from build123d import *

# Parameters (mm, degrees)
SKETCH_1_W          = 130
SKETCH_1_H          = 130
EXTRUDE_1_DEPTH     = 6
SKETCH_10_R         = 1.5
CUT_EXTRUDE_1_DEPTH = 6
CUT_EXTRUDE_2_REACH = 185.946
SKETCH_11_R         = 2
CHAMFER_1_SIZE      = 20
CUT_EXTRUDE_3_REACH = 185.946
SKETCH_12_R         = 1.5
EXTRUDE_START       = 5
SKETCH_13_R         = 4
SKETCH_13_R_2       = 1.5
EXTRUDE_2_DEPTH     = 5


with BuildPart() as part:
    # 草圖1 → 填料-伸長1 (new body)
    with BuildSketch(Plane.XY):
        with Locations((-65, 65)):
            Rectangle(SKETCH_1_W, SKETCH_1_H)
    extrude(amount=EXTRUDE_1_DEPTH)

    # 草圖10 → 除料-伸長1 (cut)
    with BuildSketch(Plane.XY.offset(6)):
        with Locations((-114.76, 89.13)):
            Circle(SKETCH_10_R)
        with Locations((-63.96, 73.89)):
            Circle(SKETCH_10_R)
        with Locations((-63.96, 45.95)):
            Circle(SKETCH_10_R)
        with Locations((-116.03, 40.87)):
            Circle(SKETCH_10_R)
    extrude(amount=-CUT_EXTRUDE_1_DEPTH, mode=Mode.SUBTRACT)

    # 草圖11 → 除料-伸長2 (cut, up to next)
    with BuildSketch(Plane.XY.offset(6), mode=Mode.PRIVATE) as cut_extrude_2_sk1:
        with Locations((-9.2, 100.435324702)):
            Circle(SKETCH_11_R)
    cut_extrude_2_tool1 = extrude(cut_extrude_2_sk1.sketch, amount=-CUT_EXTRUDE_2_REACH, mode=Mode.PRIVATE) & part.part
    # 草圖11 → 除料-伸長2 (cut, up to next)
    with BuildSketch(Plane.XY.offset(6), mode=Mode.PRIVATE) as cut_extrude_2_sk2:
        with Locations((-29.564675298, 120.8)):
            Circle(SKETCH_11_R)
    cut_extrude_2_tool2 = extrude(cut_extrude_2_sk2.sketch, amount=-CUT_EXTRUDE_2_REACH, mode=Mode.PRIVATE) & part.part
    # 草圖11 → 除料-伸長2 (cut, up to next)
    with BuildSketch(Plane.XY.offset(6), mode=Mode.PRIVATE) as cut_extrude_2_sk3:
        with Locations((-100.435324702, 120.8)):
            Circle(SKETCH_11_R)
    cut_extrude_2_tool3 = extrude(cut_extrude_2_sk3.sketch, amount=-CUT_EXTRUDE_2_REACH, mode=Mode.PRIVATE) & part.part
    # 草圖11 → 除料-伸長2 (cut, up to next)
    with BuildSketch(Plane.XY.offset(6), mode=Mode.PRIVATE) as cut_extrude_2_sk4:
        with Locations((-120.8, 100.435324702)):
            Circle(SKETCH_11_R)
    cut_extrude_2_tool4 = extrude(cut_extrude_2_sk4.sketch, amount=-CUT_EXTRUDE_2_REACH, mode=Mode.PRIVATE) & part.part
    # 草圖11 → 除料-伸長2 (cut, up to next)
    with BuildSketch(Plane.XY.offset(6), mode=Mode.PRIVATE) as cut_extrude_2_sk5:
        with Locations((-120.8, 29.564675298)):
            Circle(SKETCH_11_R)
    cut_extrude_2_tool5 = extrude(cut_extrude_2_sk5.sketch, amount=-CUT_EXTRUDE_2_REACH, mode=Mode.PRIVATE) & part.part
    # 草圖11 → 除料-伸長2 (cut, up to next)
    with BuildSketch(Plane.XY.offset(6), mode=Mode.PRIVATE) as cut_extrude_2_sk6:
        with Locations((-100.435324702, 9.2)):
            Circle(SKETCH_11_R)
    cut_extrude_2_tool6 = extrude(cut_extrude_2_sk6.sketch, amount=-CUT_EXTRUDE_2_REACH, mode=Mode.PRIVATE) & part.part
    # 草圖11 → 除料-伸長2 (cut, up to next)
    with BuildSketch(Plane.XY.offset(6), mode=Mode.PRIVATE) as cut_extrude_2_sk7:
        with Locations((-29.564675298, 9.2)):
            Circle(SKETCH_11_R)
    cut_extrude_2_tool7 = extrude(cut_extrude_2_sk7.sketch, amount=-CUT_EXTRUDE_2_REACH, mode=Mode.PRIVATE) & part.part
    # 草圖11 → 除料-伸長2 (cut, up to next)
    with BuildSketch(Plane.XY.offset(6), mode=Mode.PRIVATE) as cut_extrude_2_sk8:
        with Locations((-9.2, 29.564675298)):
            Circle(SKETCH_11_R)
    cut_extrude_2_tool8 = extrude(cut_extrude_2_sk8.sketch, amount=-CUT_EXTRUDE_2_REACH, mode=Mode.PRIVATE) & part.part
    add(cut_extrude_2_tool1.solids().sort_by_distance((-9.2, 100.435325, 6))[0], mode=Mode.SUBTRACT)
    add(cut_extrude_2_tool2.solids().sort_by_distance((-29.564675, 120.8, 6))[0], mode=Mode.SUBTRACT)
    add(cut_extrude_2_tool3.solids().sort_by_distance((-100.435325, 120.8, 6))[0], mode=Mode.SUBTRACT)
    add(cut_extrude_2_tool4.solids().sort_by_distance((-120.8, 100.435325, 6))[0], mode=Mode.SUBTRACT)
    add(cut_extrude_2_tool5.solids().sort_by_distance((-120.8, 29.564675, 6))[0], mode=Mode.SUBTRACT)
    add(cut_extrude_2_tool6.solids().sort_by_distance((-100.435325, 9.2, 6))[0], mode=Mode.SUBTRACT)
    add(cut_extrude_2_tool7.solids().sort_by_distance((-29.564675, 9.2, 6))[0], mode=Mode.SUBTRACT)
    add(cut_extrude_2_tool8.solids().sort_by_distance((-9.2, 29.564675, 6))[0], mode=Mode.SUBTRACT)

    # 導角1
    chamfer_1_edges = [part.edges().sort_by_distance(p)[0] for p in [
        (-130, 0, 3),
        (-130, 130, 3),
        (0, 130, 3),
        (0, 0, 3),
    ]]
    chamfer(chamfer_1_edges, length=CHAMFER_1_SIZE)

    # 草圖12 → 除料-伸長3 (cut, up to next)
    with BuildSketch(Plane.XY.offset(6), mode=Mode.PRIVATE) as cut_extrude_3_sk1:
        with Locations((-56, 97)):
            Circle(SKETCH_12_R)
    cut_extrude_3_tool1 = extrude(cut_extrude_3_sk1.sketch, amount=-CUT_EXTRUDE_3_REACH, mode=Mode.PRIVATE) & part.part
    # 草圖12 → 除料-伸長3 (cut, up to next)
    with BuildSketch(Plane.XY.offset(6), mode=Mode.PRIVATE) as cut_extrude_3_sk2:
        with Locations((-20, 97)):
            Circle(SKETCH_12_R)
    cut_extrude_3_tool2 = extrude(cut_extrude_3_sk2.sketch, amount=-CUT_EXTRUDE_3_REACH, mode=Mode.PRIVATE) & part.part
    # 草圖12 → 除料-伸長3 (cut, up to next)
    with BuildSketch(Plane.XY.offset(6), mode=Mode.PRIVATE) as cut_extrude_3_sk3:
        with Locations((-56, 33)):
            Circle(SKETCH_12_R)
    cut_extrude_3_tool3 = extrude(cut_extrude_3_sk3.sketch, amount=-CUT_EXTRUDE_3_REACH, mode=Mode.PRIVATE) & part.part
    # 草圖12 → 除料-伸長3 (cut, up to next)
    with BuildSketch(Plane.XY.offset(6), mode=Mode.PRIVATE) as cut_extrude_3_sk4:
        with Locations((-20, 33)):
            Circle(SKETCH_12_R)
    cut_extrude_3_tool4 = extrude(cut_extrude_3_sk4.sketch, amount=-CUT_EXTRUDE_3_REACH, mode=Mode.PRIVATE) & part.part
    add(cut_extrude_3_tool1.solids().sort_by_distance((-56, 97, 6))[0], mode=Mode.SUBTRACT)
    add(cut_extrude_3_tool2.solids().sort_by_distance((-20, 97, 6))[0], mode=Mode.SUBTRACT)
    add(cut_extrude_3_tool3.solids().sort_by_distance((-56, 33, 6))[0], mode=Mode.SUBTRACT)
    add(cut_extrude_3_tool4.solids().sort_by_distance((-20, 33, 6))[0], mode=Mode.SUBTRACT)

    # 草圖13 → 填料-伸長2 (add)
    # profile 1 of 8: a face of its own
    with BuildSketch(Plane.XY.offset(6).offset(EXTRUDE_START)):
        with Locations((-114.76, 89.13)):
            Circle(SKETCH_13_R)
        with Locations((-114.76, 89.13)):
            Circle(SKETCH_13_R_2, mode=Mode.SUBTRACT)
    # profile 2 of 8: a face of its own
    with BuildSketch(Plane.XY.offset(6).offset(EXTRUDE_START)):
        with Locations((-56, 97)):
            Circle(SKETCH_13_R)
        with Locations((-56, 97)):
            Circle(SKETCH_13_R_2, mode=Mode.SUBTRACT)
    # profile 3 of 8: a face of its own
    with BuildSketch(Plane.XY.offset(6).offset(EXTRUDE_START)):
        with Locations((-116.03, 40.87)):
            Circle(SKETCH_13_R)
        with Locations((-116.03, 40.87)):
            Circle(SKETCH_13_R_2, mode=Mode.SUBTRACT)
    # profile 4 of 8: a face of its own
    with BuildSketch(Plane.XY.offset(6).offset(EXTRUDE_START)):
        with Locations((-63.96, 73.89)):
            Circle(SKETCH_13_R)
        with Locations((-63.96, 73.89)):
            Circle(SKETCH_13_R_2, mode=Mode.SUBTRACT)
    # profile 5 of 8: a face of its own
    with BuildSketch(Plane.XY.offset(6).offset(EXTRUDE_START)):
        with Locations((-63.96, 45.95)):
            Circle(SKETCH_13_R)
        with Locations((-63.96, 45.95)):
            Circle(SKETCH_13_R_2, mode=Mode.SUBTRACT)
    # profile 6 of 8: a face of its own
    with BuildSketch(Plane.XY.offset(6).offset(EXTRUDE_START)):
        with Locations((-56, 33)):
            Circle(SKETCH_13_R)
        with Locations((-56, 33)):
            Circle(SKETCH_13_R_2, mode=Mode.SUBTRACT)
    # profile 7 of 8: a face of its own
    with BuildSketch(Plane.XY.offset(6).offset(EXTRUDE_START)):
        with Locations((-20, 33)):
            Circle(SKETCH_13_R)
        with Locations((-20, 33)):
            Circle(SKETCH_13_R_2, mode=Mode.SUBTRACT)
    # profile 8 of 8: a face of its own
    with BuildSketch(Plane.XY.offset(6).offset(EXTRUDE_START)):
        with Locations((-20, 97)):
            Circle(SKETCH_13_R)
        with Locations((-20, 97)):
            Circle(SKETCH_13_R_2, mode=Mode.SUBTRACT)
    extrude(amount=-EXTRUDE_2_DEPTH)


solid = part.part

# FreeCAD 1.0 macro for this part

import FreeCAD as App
import Part
import Sketcher
Q = App.Units.Quantity


def edges_at(feature, points):
    """Names of the edges that pass closest to the given points."""
    edges = feature.Shape.Edges
    near = lambda p: min(range(len(edges)), key=lambda i: edges[i].distToShape(Part.Vertex(*p))[0])
    return sorted({f"Edge{near(p) + 1}" for p in points})

doc = App.newDocument("Part")
body = doc.addObject("PartDesign::Body", "Body")

# Sketch on XY plane
sketch1 = body.newObject("Sketcher::SketchObject", "Sketch")
sketch1.AttachmentSupport = (doc.getObject("XY_Plane"), [""])
sketch1.MapMode = "FlatFace"
sketch1.addGeometry(Part.LineSegment(App.Vector(-130, 130, 0), App.Vector(-130, 0, 0)), False)
sketch1.addGeometry(Part.LineSegment(App.Vector(-130, 0, 0), App.Vector(0, 0, 0)), False)
sketch1.addGeometry(Part.LineSegment(App.Vector(0, 0, 0), App.Vector(0, 130, 0)), False)
sketch1.addGeometry(Part.LineSegment(App.Vector(0, 130, 0), App.Vector(-130, 130, 0)), False)
sketch1.addConstraint(Sketcher.Constraint("Coincident", 0, 2, 1, 1))
sketch1.addConstraint(Sketcher.Constraint("Coincident", 1, 2, 2, 1))
sketch1.addConstraint(Sketcher.Constraint("Coincident", 2, 2, 3, 1))
sketch1.addConstraint(Sketcher.Constraint("Coincident", 3, 2, 0, 1))
sketch1.addConstraint(Sketcher.Constraint("Vertical", 0))
sketch1.addConstraint(Sketcher.Constraint("Horizontal", 1))
sketch1.addConstraint(Sketcher.Constraint("Vertical", 2))
sketch1.addConstraint(Sketcher.Constraint("Horizontal", 3))
sketch1.addConstraint(Sketcher.Constraint("Coincident", 1, 2, -1, 1))
sketch1.addConstraint(Sketcher.Constraint("Equal", 3, 0))
sketch1.addConstraint(Sketcher.Constraint("DistanceX", 1, 1, 1, 2, Q("130 mm")))
pad1 = body.newObject("PartDesign::Pad", "Pad")
pad1.Profile = sketch1
pad1.Length = 6

# Sketch on XY plane
sketch2 = body.newObject("Sketcher::SketchObject", "Sketch001")
sketch2.AttachmentSupport = (doc.getObject("XY_Plane"), [""])
sketch2.MapMode = "FlatFace"
sketch2.AttachmentOffset = App.Placement(App.Vector(0, 0, 6), App.Rotation())
sketch2.addGeometry(Part.Circle(App.Vector(-114.8, 89.1, 0), App.Vector(0, 0, 1), 1.5), False)
sketch2.addGeometry(Part.Circle(App.Vector(-64, 73.9, 0), App.Vector(0, 0, 1), 1.5), False)
sketch2.addGeometry(Part.Circle(App.Vector(-64, 46, 0), App.Vector(0, 0, 1), 1.5), False)
sketch2.addGeometry(Part.Circle(App.Vector(-116, 40.9, 0), App.Vector(0, 0, 1), 1.5), False)
sketch2.addConstraint(Sketcher.Constraint("Equal", 0, 1))
sketch2.addConstraint(Sketcher.Constraint("Equal", 1, 2))
sketch2.addConstraint(Sketcher.Constraint("Equal", 2, 3))
sketch2.addConstraint(Sketcher.Constraint("Vertical", 1, 3, 2, 3))
sketch2.addConstraint(Sketcher.Constraint("Diameter", 0, Q("3 mm")))
sketch2.addConstraint(Sketcher.Constraint("DistanceX", 0, 3, 1, 3, Q("50.8 mm")))
sketch2.addConstraint(Sketcher.Constraint("DistanceX", 0, 3, -1, 1, Q("114.76 mm")))
sketch2.addConstraint(Sketcher.Constraint("DistanceY", -1, 1, 0, 3, Q("89.13 mm")))
sketch2.addConstraint(Sketcher.Constraint("DistanceY", -1, 1, 1, 3, Q("73.89 mm")))
sketch2.addConstraint(Sketcher.Constraint("DistanceY", -1, 1, 2, 3, Q("45.95 mm")))
sketch2.addConstraint(Sketcher.Constraint("DistanceX", 3, 3, -1, 1, Q("116.03 mm")))
sketch2.addConstraint(Sketcher.Constraint("DistanceY", -1, 1, 3, 3, Q("40.87 mm")))
pocket1 = body.newObject("PartDesign::Pocket", "Pocket")
pocket1.Profile = sketch2
pocket1.Length = 6

# Sketch on XY plane
sketch3 = body.newObject("Sketcher::SketchObject", "Sketch002")
sketch3.AttachmentSupport = (doc.getObject("XY_Plane"), [""])
sketch3.MapMode = "FlatFace"
sketch3.AttachmentOffset = App.Placement(App.Vector(0, 0, 6), App.Rotation())
sketch3.addGeometry(Part.Circle(App.Vector(-9.2, 100.4, 0), App.Vector(0, 0, 1), 2), False)
sketch3.addConstraint(Sketcher.Constraint("Diameter", 0, Q("4 mm")))
sketch3.addConstraint(Sketcher.Constraint("DistanceX", 0, 3, -1, 1, Q("9.2 mm")))
sketch3.addConstraint(Sketcher.Constraint("DistanceY", -1, 1, 0, 3, Q("100.435325 mm")))
pocket2 = body.newObject("PartDesign::Pocket", "Pocket001")
pocket2.Profile = sketch3
pocket2.Type = "UpToFirst"

# Sketch on XY plane
sketch4 = body.newObject("Sketcher::SketchObject", "Sketch003")
sketch4.AttachmentSupport = (doc.getObject("XY_Plane"), [""])
sketch4.MapMode = "FlatFace"
sketch4.AttachmentOffset = App.Placement(App.Vector(0, 0, 6), App.Rotation())
sketch4.addGeometry(Part.Circle(App.Vector(-29.6, 120.8, 0), App.Vector(0, 0, 1), 2), False)
sketch4.addConstraint(Sketcher.Constraint("Diameter", 0, Q("4 mm")))
sketch4.addConstraint(Sketcher.Constraint("DistanceY", -1, 1, 0, 3, Q("120.8 mm")))
sketch4.addConstraint(Sketcher.Constraint("DistanceX", 0, 3, -1, 1, Q("29.564675 mm")))
pocket3 = body.newObject("PartDesign::Pocket", "Pocket002")
pocket3.Profile = sketch4
pocket3.Type = "UpToFirst"

# Sketch on XY plane
sketch5 = body.newObject("Sketcher::SketchObject", "Sketch004")
sketch5.AttachmentSupport = (doc.getObject("XY_Plane"), [""])
sketch5.MapMode = "FlatFace"
sketch5.AttachmentOffset = App.Placement(App.Vector(0, 0, 6), App.Rotation())
sketch5.addGeometry(Part.Circle(App.Vector(-100.4, 120.8, 0), App.Vector(0, 0, 1), 2), False)
sketch5.addConstraint(Sketcher.Constraint("Diameter", 0, Q("4 mm")))
sketch5.addConstraint(Sketcher.Constraint("DistanceY", -1, 1, 0, 3, Q("120.8 mm")))
sketch5.addConstraint(Sketcher.Constraint("DistanceX", 0, 3, -1, 1, Q("100.435325 mm")))
pocket4 = body.newObject("PartDesign::Pocket", "Pocket003")
pocket4.Profile = sketch5
pocket4.Type = "UpToFirst"

# Sketch on XY plane
sketch6 = body.newObject("Sketcher::SketchObject", "Sketch005")
sketch6.AttachmentSupport = (doc.getObject("XY_Plane"), [""])
sketch6.MapMode = "FlatFace"
sketch6.AttachmentOffset = App.Placement(App.Vector(0, 0, 6), App.Rotation())
sketch6.addGeometry(Part.Circle(App.Vector(-120.8, 100.4, 0), App.Vector(0, 0, 1), 2), False)
sketch6.addConstraint(Sketcher.Constraint("Diameter", 0, Q("4 mm")))
sketch6.addConstraint(Sketcher.Constraint("DistanceX", 0, 3, -1, 1, Q("120.8 mm")))
sketch6.addConstraint(Sketcher.Constraint("DistanceY", -1, 1, 0, 3, Q("100.435325 mm")))
pocket5 = body.newObject("PartDesign::Pocket", "Pocket004")
pocket5.Profile = sketch6
pocket5.Type = "UpToFirst"

# Sketch on XY plane
sketch7 = body.newObject("Sketcher::SketchObject", "Sketch006")
sketch7.AttachmentSupport = (doc.getObject("XY_Plane"), [""])
sketch7.MapMode = "FlatFace"
sketch7.AttachmentOffset = App.Placement(App.Vector(0, 0, 6), App.Rotation())
sketch7.addGeometry(Part.Circle(App.Vector(-120.8, 29.6, 0), App.Vector(0, 0, 1), 2), False)
sketch7.addConstraint(Sketcher.Constraint("Diameter", 0, Q("4 mm")))
sketch7.addConstraint(Sketcher.Constraint("DistanceX", 0, 3, -1, 1, Q("120.8 mm")))
sketch7.addConstraint(Sketcher.Constraint("DistanceY", -1, 1, 0, 3, Q("29.564675 mm")))
pocket6 = body.newObject("PartDesign::Pocket", "Pocket005")
pocket6.Profile = sketch7
pocket6.Type = "UpToFirst"

# Sketch on XY plane
sketch8 = body.newObject("Sketcher::SketchObject", "Sketch007")
sketch8.AttachmentSupport = (doc.getObject("XY_Plane"), [""])
sketch8.MapMode = "FlatFace"
sketch8.AttachmentOffset = App.Placement(App.Vector(0, 0, 6), App.Rotation())
sketch8.addGeometry(Part.Circle(App.Vector(-100.4, 9.2, 0), App.Vector(0, 0, 1), 2), False)
sketch8.addConstraint(Sketcher.Constraint("Diameter", 0, Q("4 mm")))
sketch8.addConstraint(Sketcher.Constraint("DistanceY", -1, 1, 0, 3, Q("9.2 mm")))
sketch8.addConstraint(Sketcher.Constraint("DistanceX", 0, 3, -1, 1, Q("100.435325 mm")))
pocket7 = body.newObject("PartDesign::Pocket", "Pocket006")
pocket7.Profile = sketch8
pocket7.Type = "UpToFirst"

# Sketch on XY plane
sketch9 = body.newObject("Sketcher::SketchObject", "Sketch008")
sketch9.AttachmentSupport = (doc.getObject("XY_Plane"), [""])
sketch9.MapMode = "FlatFace"
sketch9.AttachmentOffset = App.Placement(App.Vector(0, 0, 6), App.Rotation())
sketch9.addGeometry(Part.Circle(App.Vector(-29.6, 9.2, 0), App.Vector(0, 0, 1), 2), False)
sketch9.addConstraint(Sketcher.Constraint("Diameter", 0, Q("4 mm")))
sketch9.addConstraint(Sketcher.Constraint("DistanceY", -1, 1, 0, 3, Q("9.2 mm")))
sketch9.addConstraint(Sketcher.Constraint("DistanceX", 0, 3, -1, 1, Q("29.564675 mm")))
pocket8 = body.newObject("PartDesign::Pocket", "Pocket007")
pocket8.Profile = sketch9
pocket8.Type = "UpToFirst"

# Sketch on XY plane
sketch10 = body.newObject("Sketcher::SketchObject", "Sketch009")
sketch10.AttachmentSupport = (doc.getObject("XY_Plane"), [""])
sketch10.MapMode = "FlatFace"
sketch10.AttachmentOffset = App.Placement(App.Vector(0, 0, 6), App.Rotation())
sketch10.addGeometry(Part.Circle(App.Vector(-9.2, 29.6, 0), App.Vector(0, 0, 1), 2), False)
sketch10.addConstraint(Sketcher.Constraint("Diameter", 0, Q("4 mm")))
sketch10.addConstraint(Sketcher.Constraint("DistanceX", 0, 3, -1, 1, Q("9.2 mm")))
sketch10.addConstraint(Sketcher.Constraint("DistanceY", -1, 1, 0, 3, Q("29.564675 mm")))
pocket9 = body.newObject("PartDesign::Pocket", "Pocket008")
pocket9.Profile = sketch10
pocket9.Type = "UpToFirst"
doc.recompute()

chamfer = body.newObject("PartDesign::Chamfer", "Chamfer")
chamfer.Base = (pocket9, edges_at(pocket9, [
    (-130, 0, 3),
    (-130, 130, 3),
    (0, 130, 3),
    (0, 0, 3),
]))
chamfer.Size = 20

# Sketch on XY plane
sketch11 = body.newObject("Sketcher::SketchObject", "Sketch010")
sketch11.AttachmentSupport = (doc.getObject("XY_Plane"), [""])
sketch11.MapMode = "FlatFace"
sketch11.AttachmentOffset = App.Placement(App.Vector(0, 0, 6), App.Rotation())
sketch11.addGeometry(Part.Circle(App.Vector(-56, 97, 0), App.Vector(0, 0, 1), 1.5), False)
sketch11.addConstraint(Sketcher.Constraint("Diameter", 0, Q("3 mm")))
sketch11.addConstraint(Sketcher.Constraint("DistanceX", 0, 3, -1, 1, Q("56 mm")))
sketch11.addConstraint(Sketcher.Constraint("DistanceY", -1, 1, 0, 3, Q("97 mm")))
pocket10 = body.newObject("PartDesign::Pocket", "Pocket009")
pocket10.Profile = sketch11
pocket10.Type = "UpToFirst"

# Sketch on XY plane
sketch12 = body.newObject("Sketcher::SketchObject", "Sketch011")
sketch12.AttachmentSupport = (doc.getObject("XY_Plane"), [""])
sketch12.MapMode = "FlatFace"
sketch12.AttachmentOffset = App.Placement(App.Vector(0, 0, 6), App.Rotation())
sketch12.addGeometry(Part.Circle(App.Vector(-20, 97, 0), App.Vector(0, 0, 1), 1.5), False)
sketch12.addConstraint(Sketcher.Constraint("Diameter", 0, Q("3 mm")))
sketch12.addConstraint(Sketcher.Constraint("DistanceX", 0, 3, -1, 1, Q("20 mm")))
sketch12.addConstraint(Sketcher.Constraint("DistanceY", -1, 1, 0, 3, Q("97 mm")))
pocket11 = body.newObject("PartDesign::Pocket", "Pocket010")
pocket11.Profile = sketch12
pocket11.Type = "UpToFirst"

# Sketch on XY plane
sketch13 = body.newObject("Sketcher::SketchObject", "Sketch012")
sketch13.AttachmentSupport = (doc.getObject("XY_Plane"), [""])
sketch13.MapMode = "FlatFace"
sketch13.AttachmentOffset = App.Placement(App.Vector(0, 0, 6), App.Rotation())
sketch13.addGeometry(Part.Circle(App.Vector(-56, 33, 0), App.Vector(0, 0, 1), 1.5), False)
sketch13.addConstraint(Sketcher.Constraint("Diameter", 0, Q("3 mm")))
sketch13.addConstraint(Sketcher.Constraint("DistanceX", 0, 3, -1, 1, Q("56 mm")))
sketch13.addConstraint(Sketcher.Constraint("DistanceY", -1, 1, 0, 3, Q("33 mm")))
pocket12 = body.newObject("PartDesign::Pocket", "Pocket011")
pocket12.Profile = sketch13
pocket12.Type = "UpToFirst"

# Sketch on XY plane
sketch14 = body.newObject("Sketcher::SketchObject", "Sketch013")
sketch14.AttachmentSupport = (doc.getObject("XY_Plane"), [""])
sketch14.MapMode = "FlatFace"
sketch14.AttachmentOffset = App.Placement(App.Vector(0, 0, 6), App.Rotation())
sketch14.addGeometry(Part.Circle(App.Vector(-20, 33, 0), App.Vector(0, 0, 1), 1.5), False)
sketch14.addConstraint(Sketcher.Constraint("Diameter", 0, Q("3 mm")))
sketch14.addConstraint(Sketcher.Constraint("DistanceX", 0, 3, -1, 1, Q("20 mm")))
sketch14.addConstraint(Sketcher.Constraint("DistanceY", -1, 1, 0, 3, Q("33 mm")))
pocket13 = body.newObject("PartDesign::Pocket", "Pocket012")
pocket13.Profile = sketch14
pocket13.Type = "UpToFirst"

# Sketch on XY plane
sketch15 = body.newObject("Sketcher::SketchObject", "Sketch014")
sketch15.AttachmentSupport = (doc.getObject("XY_Plane"), [""])
sketch15.MapMode = "FlatFace"
sketch15.AttachmentOffset = App.Placement(App.Vector(0, 0, 11), App.Rotation())
sketch15.addGeometry(Part.Circle(App.Vector(-114.8, 89.1, 0), App.Vector(0, 0, 1), 4), False)
sketch15.addGeometry(Part.Circle(App.Vector(-114.8, 89.1, 0), App.Vector(0, 0, 1), 1.5), False)
sketch15.addGeometry(Part.Circle(App.Vector(-56, 97, 0), App.Vector(0, 0, 1), 4), False)
sketch15.addGeometry(Part.Circle(App.Vector(-56, 97, 0), App.Vector(0, 0, 1), 1.5), False)
sketch15.addGeometry(Part.Circle(App.Vector(-116, 40.9, 0), App.Vector(0, 0, 1), 4), False)
sketch15.addGeometry(Part.Circle(App.Vector(-116, 40.9, 0), App.Vector(0, 0, 1), 1.5), False)
sketch15.addGeometry(Part.Circle(App.Vector(-64, 73.9, 0), App.Vector(0, 0, 1), 4), False)
sketch15.addGeometry(Part.Circle(App.Vector(-64, 73.9, 0), App.Vector(0, 0, 1), 1.5), False)
sketch15.addGeometry(Part.Circle(App.Vector(-64, 46, 0), App.Vector(0, 0, 1), 4), False)
sketch15.addGeometry(Part.Circle(App.Vector(-64, 46, 0), App.Vector(0, 0, 1), 1.5), False)
sketch15.addGeometry(Part.Circle(App.Vector(-56, 33, 0), App.Vector(0, 0, 1), 4), False)
sketch15.addGeometry(Part.Circle(App.Vector(-56, 33, 0), App.Vector(0, 0, 1), 1.5), False)
sketch15.addGeometry(Part.Circle(App.Vector(-20, 33, 0), App.Vector(0, 0, 1), 4), False)
sketch15.addGeometry(Part.Circle(App.Vector(-20, 33, 0), App.Vector(0, 0, 1), 1.5), False)
sketch15.addGeometry(Part.Circle(App.Vector(-20, 97, 0), App.Vector(0, 0, 1), 4), False)
sketch15.addGeometry(Part.Circle(App.Vector(-20, 97, 0), App.Vector(0, 0, 1), 1.5), False)
sketch15.addConstraint(Sketcher.Constraint("Coincident", 1, 3, 0, 3))
sketch15.addConstraint(Sketcher.Constraint("Coincident", 3, 3, 2, 3))
sketch15.addConstraint(Sketcher.Constraint("Coincident", 5, 3, 4, 3))
sketch15.addConstraint(Sketcher.Constraint("Coincident", 7, 3, 6, 3))
sketch15.addConstraint(Sketcher.Constraint("Coincident", 9, 3, 8, 3))
sketch15.addConstraint(Sketcher.Constraint("Coincident", 11, 3, 10, 3))
sketch15.addConstraint(Sketcher.Constraint("Coincident", 13, 3, 12, 3))
sketch15.addConstraint(Sketcher.Constraint("Coincident", 15, 3, 14, 3))
sketch15.addConstraint(Sketcher.Constraint("Equal", 0, 2))
sketch15.addConstraint(Sketcher.Constraint("Equal", 1, 3))
sketch15.addConstraint(Sketcher.Constraint("Equal", 2, 4))
sketch15.addConstraint(Sketcher.Constraint("Equal", 3, 5))
sketch15.addConstraint(Sketcher.Constraint("Equal", 4, 6))
sketch15.addConstraint(Sketcher.Constraint("Equal", 5, 7))
sketch15.addConstraint(Sketcher.Constraint("Equal", 6, 8))
sketch15.addConstraint(Sketcher.Constraint("Equal", 7, 9))
sketch15.addConstraint(Sketcher.Constraint("Equal", 8, 10))
sketch15.addConstraint(Sketcher.Constraint("Equal", 9, 11))
sketch15.addConstraint(Sketcher.Constraint("Equal", 10, 12))
sketch15.addConstraint(Sketcher.Constraint("Equal", 11, 13))
sketch15.addConstraint(Sketcher.Constraint("Equal", 12, 14))
sketch15.addConstraint(Sketcher.Constraint("Equal", 13, 15))
sketch15.addConstraint(Sketcher.Constraint("Horizontal", 11, 3, 12, 3))
sketch15.addConstraint(Sketcher.Constraint("Horizontal", 3, 3, 14, 3))
sketch15.addConstraint(Sketcher.Constraint("Vertical", 7, 3, 8, 3))
sketch15.addConstraint(Sketcher.Constraint("Vertical", 3, 3, 10, 3))
sketch15.addConstraint(Sketcher.Constraint("Vertical", 13, 3, 14, 3))
sketch15.addConstraint(Sketcher.Constraint("Diameter", 0, Q("8 mm")))
sketch15.addConstraint(Sketcher.Constraint("Diameter", 1, Q("3 mm")))
sketch15.addConstraint(Sketcher.Constraint("DistanceX", 2, 3, -1, 1, Q("56 mm")))
sketch15.addConstraint(Sketcher.Constraint("DistanceY", -1, 1, 2, 3, Q("97 mm")))
sketch15.addConstraint(Sketcher.Constraint("DistanceY", -1, 1, 10, 3, Q("33 mm")))
sketch15.addConstraint(Sketcher.Constraint("DistanceX", 12, 3, -1, 1, Q("20 mm")))
sketch15.addConstraint(Sketcher.Constraint("DistanceX", 0, 3, 6, 3, Q("50.8 mm")))
sketch15.addConstraint(Sketcher.Constraint("DistanceX", 0, 3, -1, 1, Q("114.76 mm")))
sketch15.addConstraint(Sketcher.Constraint("DistanceY", -1, 1, 0, 3, Q("89.13 mm")))
sketch15.addConstraint(Sketcher.Constraint("DistanceX", 4, 3, -1, 1, Q("116.03 mm")))
sketch15.addConstraint(Sketcher.Constraint("DistanceY", -1, 1, 4, 3, Q("40.87 mm")))
sketch15.addConstraint(Sketcher.Constraint("DistanceY", -1, 1, 6, 3, Q("73.89 mm")))
sketch15.addConstraint(Sketcher.Constraint("DistanceY", -1, 1, 8, 3, Q("45.95 mm")))
pad2 = body.newObject("PartDesign::Pad", "Pad001")
pad2.Profile = sketch15
pad2.Length = 5
pad2.Reversed = True

doc.recompute()
